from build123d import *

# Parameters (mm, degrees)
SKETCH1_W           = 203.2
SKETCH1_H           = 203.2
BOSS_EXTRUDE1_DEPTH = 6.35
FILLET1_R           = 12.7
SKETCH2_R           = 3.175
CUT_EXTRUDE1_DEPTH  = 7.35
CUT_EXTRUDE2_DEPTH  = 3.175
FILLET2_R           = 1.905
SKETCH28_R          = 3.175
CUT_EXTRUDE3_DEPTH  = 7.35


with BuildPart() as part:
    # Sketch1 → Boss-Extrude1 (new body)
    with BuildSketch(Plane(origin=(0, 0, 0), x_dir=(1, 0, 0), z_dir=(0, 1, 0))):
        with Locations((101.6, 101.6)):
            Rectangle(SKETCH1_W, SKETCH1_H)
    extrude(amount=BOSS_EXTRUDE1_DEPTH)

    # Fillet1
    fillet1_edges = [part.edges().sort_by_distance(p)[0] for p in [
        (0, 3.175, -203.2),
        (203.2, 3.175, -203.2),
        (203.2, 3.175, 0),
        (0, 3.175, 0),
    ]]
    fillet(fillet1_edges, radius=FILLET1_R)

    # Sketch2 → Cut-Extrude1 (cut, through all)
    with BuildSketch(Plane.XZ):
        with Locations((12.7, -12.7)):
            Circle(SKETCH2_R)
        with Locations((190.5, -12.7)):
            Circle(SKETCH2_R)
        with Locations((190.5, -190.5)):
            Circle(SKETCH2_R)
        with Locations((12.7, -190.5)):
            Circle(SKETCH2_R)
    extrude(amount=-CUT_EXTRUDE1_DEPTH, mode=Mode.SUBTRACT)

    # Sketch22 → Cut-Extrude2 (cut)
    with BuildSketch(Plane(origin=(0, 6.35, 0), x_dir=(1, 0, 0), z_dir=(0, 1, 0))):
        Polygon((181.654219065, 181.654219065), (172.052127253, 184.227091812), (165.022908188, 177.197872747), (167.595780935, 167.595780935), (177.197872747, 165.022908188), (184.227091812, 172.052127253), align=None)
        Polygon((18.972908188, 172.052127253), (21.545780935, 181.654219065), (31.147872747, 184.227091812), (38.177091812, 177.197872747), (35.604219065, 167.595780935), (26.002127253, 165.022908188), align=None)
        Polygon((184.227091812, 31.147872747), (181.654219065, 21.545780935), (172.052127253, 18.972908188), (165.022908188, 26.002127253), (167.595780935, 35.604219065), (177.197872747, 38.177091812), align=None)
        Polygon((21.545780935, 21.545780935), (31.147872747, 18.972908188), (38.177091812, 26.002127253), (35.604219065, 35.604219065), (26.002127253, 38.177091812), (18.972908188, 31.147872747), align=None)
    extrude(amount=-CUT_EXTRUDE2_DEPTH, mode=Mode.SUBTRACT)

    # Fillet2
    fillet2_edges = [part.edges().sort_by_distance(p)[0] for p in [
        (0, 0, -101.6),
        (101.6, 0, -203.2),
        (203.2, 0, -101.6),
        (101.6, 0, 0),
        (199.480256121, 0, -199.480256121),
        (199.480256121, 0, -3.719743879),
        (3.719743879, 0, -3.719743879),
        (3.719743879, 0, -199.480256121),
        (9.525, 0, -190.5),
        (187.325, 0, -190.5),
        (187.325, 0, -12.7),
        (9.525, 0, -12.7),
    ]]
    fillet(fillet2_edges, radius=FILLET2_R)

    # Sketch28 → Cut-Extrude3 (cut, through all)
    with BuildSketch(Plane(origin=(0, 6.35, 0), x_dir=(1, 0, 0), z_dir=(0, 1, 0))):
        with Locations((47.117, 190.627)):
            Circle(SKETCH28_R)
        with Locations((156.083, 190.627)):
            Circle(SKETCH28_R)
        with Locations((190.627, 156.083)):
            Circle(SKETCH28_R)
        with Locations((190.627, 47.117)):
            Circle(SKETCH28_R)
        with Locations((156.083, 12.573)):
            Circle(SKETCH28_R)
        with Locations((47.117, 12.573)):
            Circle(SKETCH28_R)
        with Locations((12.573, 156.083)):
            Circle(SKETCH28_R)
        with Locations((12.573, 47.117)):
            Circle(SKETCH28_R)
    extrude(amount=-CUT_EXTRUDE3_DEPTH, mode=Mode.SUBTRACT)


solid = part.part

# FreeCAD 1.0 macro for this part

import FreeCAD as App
import Part
import Sketcher
Q = App.Units.Quantity


def edges_at(feature, points):
    """Names of the edges that pass closest to the given points."""
    edges = feature.Shape.Edges
    near = lambda p: min(range(len(edges)), key=lambda i: edges[i].distToShape(Part.Vertex(*p))[0])
    return sorted({f"Edge{near(p) + 1}" for p in points})

doc = App.newDocument("Part")
params = doc.addObject("Spreadsheet::Sheet", "Params")
for row, (alias, value) in enumerate([
    ("sketch1_width", "8 in"),
    ("pad1_length", "0.25 in"),
    ("fillet_radius", "0.5 in"),
    ("sketch2_diameter", "0.25 in"),
    ("pocket2_length", "0.125 in"),
    ("fillet2_radius", "0.075 in"),
    ("sketch4_diameter", "0.25 in"),
], start=1):
    params.set(f"A{row}", alias)
    params.set(f"B{row}", "=" + value)
    params.setAlias(f"B{row}", alias)

body = doc.addObject("PartDesign::Body", "Body")

# Sketch on XZ plane
sketch1 = body.newObject("Sketcher::SketchObject", "Sketch")
sketch1.AttachmentSupport = (doc.getObject("XZ_Plane"), [""])
sketch1.MapMode = "FlatFace"
sketch1.addGeometry([
    Part.LineSegment(App.Vector(0, -203, 0), App.Vector(0, 0, 0)),
    Part.LineSegment(App.Vector(0, 0, 0), App.Vector(203, 0, 0)),
    Part.LineSegment(App.Vector(203, 0, 0), App.Vector(203, -203, 0)),
    Part.LineSegment(App.Vector(203, -203, 0), App.Vector(0, -203, 0)),
], False)
sketch1.addConstraint([
    Sketcher.Constraint("Coincident", 0, 2, 1, 1),
    Sketcher.Constraint("Coincident", 1, 2, 2, 1),
    Sketcher.Constraint("Coincident", 2, 2, 3, 1),
    Sketcher.Constraint("Coincident", 3, 2, 0, 1),
    Sketcher.Constraint("Vertical", 0),
    Sketcher.Constraint("Horizontal", 1),
    Sketcher.Constraint("Vertical", 2),
    Sketcher.Constraint("Horizontal", 3),
    Sketcher.Constraint("Coincident", 0, 2, -1, 1),
    Sketcher.Constraint("Equal", 3, 0),
    Sketcher.Constraint("DistanceX", 1, 1, 1, 2, Q("8 in")),
])
sketch1.setExpression("Constraints[10]", "Params.sketch1_width")
pad1 = body.newObject("PartDesign::Pad", "Pad")
pad1.Profile = sketch1
pad1.setExpression("Length", "Params.pad1_length")
pad1.Reversed = True
doc.recompute()

fillet = body.newObject("PartDesign::Fillet", "Fillet")
fillet.Base = (pad1, edges_at(pad1, [
    (0, 3.175, -203.2),
    (203.2, 3.175, -203.2),
    (203.2, 3.175, 0),
    (0, 3.175, 0),
]))
fillet.setExpression("Radius", "Params.fillet_radius")

# Sketch on XZ plane
sketch2 = body.newObject("Sketcher::SketchObject", "Sketch001")
sketch2.AttachmentSupport = (doc.getObject("XZ_Plane"), [""])
sketch2.MapMode = "FlatFace"
sketch2.addGeometry([
    Part.Circle(App.Vector(12.7, -12.7, 0), App.Vector(0, 0, 1), 3.2),
    Part.Circle(App.Vector(190.5, -12.7, 0), App.Vector(0, 0, 1), 3.2),
    Part.Circle(App.Vector(190.5, -190.5, 0), App.Vector(0, 0, 1), 3.2),
    Part.Circle(App.Vector(12.7, -190.5, 0), App.Vector(0, 0, 1), 3.2),
], False)
sketch2.addConstraint([
    Sketcher.Constraint("Equal", 0, 1),
    Sketcher.Constraint("Equal", 1, 2),
    Sketcher.Constraint("Equal", 2, 3),
    Sketcher.Constraint("Horizontal", 0, 3, 1, 3),
    Sketcher.Constraint("Horizontal", 2, 3, 3, 3),
    Sketcher.Constraint("Vertical", 1, 3, 2, 3),
    Sketcher.Constraint("Vertical", 0, 3, 3, 3),
    Sketcher.Constraint("Diameter", 0, Q("0.25 in")),
    Sketcher.Constraint("DistanceX", 0, 3, 1, 3, Q("7 in")),
    Sketcher.Constraint("DistanceY", 2, 3, 1, 3, Q("7 in")),
    Sketcher.Constraint("DistanceX", -1, 1, 0, 3, Q("0.5 in")),
    Sketcher.Constraint("DistanceY", 0, 3, -1, 1, Q("0.5 in")),
])
sketch2.setExpression("Constraints[7]", "Params.sketch2_diameter")
pocket1 = body.newObject("PartDesign::Pocket", "Pocket")
pocket1.Profile = sketch2
pocket1.Type = "ThroughAll"

# Sketch on XZ plane
sketch3 = body.newObject("Sketcher::SketchObject", "Sketch002")
sketch3.AttachmentSupport = (doc.getObject("XZ_Plane"), [""])
sketch3.MapMode = "FlatFace"
sketch3.AttachmentOffset = App.Placement(App.Vector(0, 0, -0.25 * 25.4), App.Rotation())
sketch3.addGeometry([
    Part.LineSegment(App.Vector(182, -182, 0), App.Vector(172, -184, 0)),  # 0
    Part.LineSegment(App.Vector(172, -184, 0), App.Vector(165, -177, 0)),  # 1
    Part.LineSegment(App.Vector(165, -177, 0), App.Vector(168, -168, 0)),  # 2
    Part.LineSegment(App.Vector(168, -168, 0), App.Vector(177, -165, 0)),  # 3
    Part.LineSegment(App.Vector(177, -165, 0), App.Vector(184, -172, 0)),  # 4
    Part.LineSegment(App.Vector(184, -172, 0), App.Vector(182, -182, 0)),  # 5
    Part.LineSegment(App.Vector(22, -182, 0), App.Vector(19, -172, 0)),  # 6
    Part.LineSegment(App.Vector(19, -172, 0), App.Vector(26, -165, 0)),  # 7
    Part.LineSegment(App.Vector(26, -165, 0), App.Vector(36, -168, 0)),  # 8
    Part.LineSegment(App.Vector(36, -168, 0), App.Vector(38, -177, 0)),  # 9
    Part.LineSegment(App.Vector(38, -177, 0), App.Vector(31, -184, 0)),  # 10
    Part.LineSegment(App.Vector(31, -184, 0), App.Vector(22, -182, 0)),  # 11
    Part.LineSegment(App.Vector(182, -22, 0), App.Vector(184, -31, 0)),  # 12
    Part.LineSegment(App.Vector(184, -31, 0), App.Vector(177, -38, 0)),  # 13
    Part.LineSegment(App.Vector(177, -38, 0), App.Vector(168, -36, 0)),  # 14
    Part.LineSegment(App.Vector(168, -36, 0), App.Vector(165, -26, 0)),  # 15
    Part.LineSegment(App.Vector(165, -26, 0), App.Vector(172, -19, 0)),  # 16
    Part.LineSegment(App.Vector(172, -19, 0), App.Vector(182, -22, 0)),  # 17
    Part.LineSegment(App.Vector(22, -22, 0), App.Vector(31, -19, 0)),  # 18
    Part.LineSegment(App.Vector(31, -19, 0), App.Vector(38, -26, 0)),  # 19
    Part.LineSegment(App.Vector(38, -26, 0), App.Vector(36, -36, 0)),  # 20
    Part.LineSegment(App.Vector(36, -36, 0), App.Vector(26, -38, 0)),  # 21
    Part.LineSegment(App.Vector(26, -38, 0), App.Vector(19, -31, 0)),  # 22
    Part.LineSegment(App.Vector(19, -31, 0), App.Vector(22, -22, 0)),  # 23
], False)
sketch3.addConstraint([
    Sketcher.Constraint("Coincident", 0, 2, 1, 1),
    Sketcher.Constraint("Coincident", 1, 2, 2, 1),
    Sketcher.Constraint("Coincident", 2, 2, 3, 1),
    Sketcher.Constraint("Coincident", 3, 2, 4, 1),
    Sketcher.Constraint("Coincident", 4, 2, 5, 1),
    Sketcher.Constraint("Coincident", 5, 2, 0, 1),
    Sketcher.Constraint("Coincident", 6, 2, 7, 1),
    Sketcher.Constraint("Coincident", 7, 2, 8, 1),
    Sketcher.Constraint("Coincident", 8, 2, 9, 1),
    Sketcher.Constraint("Coincident", 9, 2, 10, 1),
    Sketcher.Constraint("Coincident", 10, 2, 11, 1),
    Sketcher.Constraint("Coincident", 11, 2, 6, 1),
    Sketcher.Constraint("Coincident", 12, 2, 13, 1),
    Sketcher.Constraint("Coincident", 13, 2, 14, 1),
    Sketcher.Constraint("Coincident", 14, 2, 15, 1),
    Sketcher.Constraint("Coincident", 15, 2, 16, 1),
    Sketcher.Constraint("Coincident", 16, 2, 17, 1),
    Sketcher.Constraint("Coincident", 17, 2, 12, 1),
    Sketcher.Constraint("Coincident", 18, 2, 19, 1),
    Sketcher.Constraint("Coincident", 19, 2, 20, 1),
    Sketcher.Constraint("Coincident", 20, 2, 21, 1),
    Sketcher.Constraint("Coincident", 21, 2, 22, 1),
    Sketcher.Constraint("Coincident", 22, 2, 23, 1),
    Sketcher.Constraint("Coincident", 23, 2, 18, 1),
    Sketcher.Constraint("Parallel", 0, 3),
    Sketcher.Constraint("Parallel", 1, 4),
    Sketcher.Constraint("Parallel", 2, 5),
    Sketcher.Constraint("Perpendicular", 3, 6),
    Sketcher.Constraint("Perpendicular", 4, 7),
    Sketcher.Constraint("Perpendicular", 5, 8),
    Sketcher.Constraint("Parallel", 6, 9),
    Sketcher.Constraint("Parallel", 7, 10),
    Sketcher.Constraint("Parallel", 8, 11),
    Sketcher.Constraint("Parallel", 9, 12),
    Sketcher.Constraint("Parallel", 10, 13),
    Sketcher.Constraint("Parallel", 11, 14),
    Sketcher.Constraint("Parallel", 12, 15),
    Sketcher.Constraint("Parallel", 13, 16),
    Sketcher.Constraint("Parallel", 14, 17),
    Sketcher.Constraint("Perpendicular", 15, 18),
    Sketcher.Constraint("Perpendicular", 16, 19),
    Sketcher.Constraint("Perpendicular", 17, 20),
    Sketcher.Constraint("Parallel", 18, 21),
    Sketcher.Constraint("Parallel", 19, 22),
    Sketcher.Constraint("Parallel", 20, 23),
    Sketcher.Constraint("Horizontal", 4, 2, 6, 2),
    Sketcher.Constraint("Horizontal", 3, 2, 7, 2),
    Sketcher.Constraint("Horizontal", 2, 2, 8, 2),
    Sketcher.Constraint("Horizontal", 1, 2, 9, 2),
    Sketcher.Constraint("Horizontal", 0, 2, 10, 2),
    Sketcher.Constraint("Horizontal", 16, 2, 18, 2),
    Sketcher.Constraint("Horizontal", 15, 2, 19, 2),
    Sketcher.Constraint("Horizontal", 14, 2, 20, 2),
    Sketcher.Constraint("Horizontal", 13, 2, 21, 2),
    Sketcher.Constraint("Horizontal", 12, 2, 22, 2),
    Sketcher.Constraint("Vertical", 4, 2, 12, 2),
    Sketcher.Constraint("Vertical", 3, 2, 13, 2),
    Sketcher.Constraint("Vertical", 2, 2, 14, 2),
    Sketcher.Constraint("Vertical", 1, 2, 15, 2),
    Sketcher.Constraint("Vertical", 0, 2, 16, 2),
    Sketcher.Constraint("Vertical", 10, 2, 18, 2),
    Sketcher.Constraint("Vertical", 9, 2, 19, 2),
    Sketcher.Constraint("Vertical", 8, 2, 20, 2),
    Sketcher.Constraint("Equal", 0, 1),
    Sketcher.Constraint("Equal", 1, 2),
    Sketcher.Constraint("Equal", 2, 3),
    Sketcher.Constraint("Angle", 0, Q("-165 deg")),
    Sketcher.Constraint("DistanceX", 6, 2, 1, 2, Q("5.75 in")),
    Sketcher.Constraint("DistanceY", 1, 2, 12, 2, Q("5.75 in")),
    Sketcher.Constraint("DistanceY", 0, 2, -1, 1, Q("184.227092 mm")),
    Sketcher.Constraint("DistanceX", -1, 1, 1, 2, Q("165.022908 mm")),
    Sketcher.Constraint("DistanceX", -1, 1, 2, 2, Q("167.595781 mm")),
])
pocket2 = body.newObject("PartDesign::Pocket", "Pocket001")
pocket2.Profile = sketch3
pocket2.setExpression("Length", "Params.pocket2_length")
pocket2.Reversed = True
doc.recompute()

fillet2 = body.newObject("PartDesign::Fillet", "Fillet001")
fillet2.Base = (pocket2, edges_at(pocket2, [
    (0, 0, -101.6),
    (101.6, 0, -203.2),
    (203.2, 0, -101.6),
    (101.6, 0, 0),
    (199.48, 0, -199.48),
    (199.48, 0, -3.72),
    (3.72, 0, -3.72),
    (3.72, 0, -199.48),
    (9.525, 0, -190.5),
    (187.325, 0, -190.5),
    (187.325, 0, -12.7),
    (9.525, 0, -12.7),
]))
fillet2.setExpression("Radius", "Params.fillet2_radius")

# Sketch on XZ plane
sketch4 = body.newObject("Sketcher::SketchObject", "Sketch003")
sketch4.AttachmentSupport = (doc.getObject("XZ_Plane"), [""])
sketch4.MapMode = "FlatFace"
sketch4.AttachmentOffset = App.Placement(App.Vector(0, 0, -0.25 * 25.4), App.Rotation())
sketch4.addGeometry([
    Part.Circle(App.Vector(47.1, -190.6, 0), App.Vector(0, 0, 1), 3.2),  # 0
    Part.Circle(App.Vector(156.1, -190.6, 0), App.Vector(0, 0, 1), 3.2),  # 1
    Part.Circle(App.Vector(190.6, -156.1, 0), App.Vector(0, 0, 1), 3.2),  # 2
    Part.Circle(App.Vector(190.6, -47.1, 0), App.Vector(0, 0, 1), 3.2),  # 3
    Part.Circle(App.Vector(156.1, -12.6, 0), App.Vector(0, 0, 1), 3.2),  # 4
    Part.Circle(App.Vector(47.1, -12.6, 0), App.Vector(0, 0, 1), 3.2),  # 5
    Part.Circle(App.Vector(12.6, -156.1, 0), App.Vector(0, 0, 1), 3.2),  # 6
    Part.Circle(App.Vector(12.6, -47.1, 0), App.Vector(0, 0, 1), 3.2),  # 7
], False)
sketch4.addConstraint([
    Sketcher.Constraint("Equal", 0, 1),
    Sketcher.Constraint("Equal", 1, 2),
    Sketcher.Constraint("Equal", 2, 3),
    Sketcher.Constraint("Equal", 3, 4),
    Sketcher.Constraint("Equal", 4, 5),
    Sketcher.Constraint("Equal", 5, 6),
    Sketcher.Constraint("Equal", 6, 7),
    Sketcher.Constraint("Horizontal", 0, 3, 1, 3),
    Sketcher.Constraint("Horizontal", 4, 3, 5, 3),
    Sketcher.Constraint("Horizontal", 2, 3, 6, 3),
    Sketcher.Constraint("Horizontal", 3, 3, 7, 3),
    Sketcher.Constraint("Vertical", 2, 3, 3, 3),
    Sketcher.Constraint("Vertical", 1, 3, 4, 3),
    Sketcher.Constraint("Vertical", 0, 3, 5, 3),
    Sketcher.Constraint("Vertical", 6, 3, 7, 3),
    Sketcher.Constraint("Diameter", 0, Q("0.25 in")),
    Sketcher.Constraint("DistanceX", 0, 3, 1, 3, Q("4.29 in")),
    Sketcher.Constraint("DistanceX", 1, 3, 2, 3, Q("1.36 in")),
    Sketcher.Constraint("DistanceY", 1, 3, 2, 3, Q("1.36 in")),
    Sketcher.Constraint("DistanceY", 2, 3, 3, 3, Q("4.29 in")),
    Sketcher.Constraint("DistanceY", 3, 3, 4, 3, Q("1.36 in")),
    Sketcher.Constraint("DistanceX", 6, 3, 0, 3, Q("1.36 in")),
    Sketcher.Constraint("DistanceX", -1, 1, 0, 3, Q("1.855 in")),
    Sketcher.Constraint("DistanceY", 0, 3, -1, 1, Q("7.505 in")),
])
sketch4.setExpression("Constraints[15]", "Params.sketch4_diameter")
pocket3 = body.newObject("PartDesign::Pocket", "Pocket002")
pocket3.Profile = sketch4
pocket3.Type = "ThroughAll"
pocket3.Reversed = True

doc.recompute()
